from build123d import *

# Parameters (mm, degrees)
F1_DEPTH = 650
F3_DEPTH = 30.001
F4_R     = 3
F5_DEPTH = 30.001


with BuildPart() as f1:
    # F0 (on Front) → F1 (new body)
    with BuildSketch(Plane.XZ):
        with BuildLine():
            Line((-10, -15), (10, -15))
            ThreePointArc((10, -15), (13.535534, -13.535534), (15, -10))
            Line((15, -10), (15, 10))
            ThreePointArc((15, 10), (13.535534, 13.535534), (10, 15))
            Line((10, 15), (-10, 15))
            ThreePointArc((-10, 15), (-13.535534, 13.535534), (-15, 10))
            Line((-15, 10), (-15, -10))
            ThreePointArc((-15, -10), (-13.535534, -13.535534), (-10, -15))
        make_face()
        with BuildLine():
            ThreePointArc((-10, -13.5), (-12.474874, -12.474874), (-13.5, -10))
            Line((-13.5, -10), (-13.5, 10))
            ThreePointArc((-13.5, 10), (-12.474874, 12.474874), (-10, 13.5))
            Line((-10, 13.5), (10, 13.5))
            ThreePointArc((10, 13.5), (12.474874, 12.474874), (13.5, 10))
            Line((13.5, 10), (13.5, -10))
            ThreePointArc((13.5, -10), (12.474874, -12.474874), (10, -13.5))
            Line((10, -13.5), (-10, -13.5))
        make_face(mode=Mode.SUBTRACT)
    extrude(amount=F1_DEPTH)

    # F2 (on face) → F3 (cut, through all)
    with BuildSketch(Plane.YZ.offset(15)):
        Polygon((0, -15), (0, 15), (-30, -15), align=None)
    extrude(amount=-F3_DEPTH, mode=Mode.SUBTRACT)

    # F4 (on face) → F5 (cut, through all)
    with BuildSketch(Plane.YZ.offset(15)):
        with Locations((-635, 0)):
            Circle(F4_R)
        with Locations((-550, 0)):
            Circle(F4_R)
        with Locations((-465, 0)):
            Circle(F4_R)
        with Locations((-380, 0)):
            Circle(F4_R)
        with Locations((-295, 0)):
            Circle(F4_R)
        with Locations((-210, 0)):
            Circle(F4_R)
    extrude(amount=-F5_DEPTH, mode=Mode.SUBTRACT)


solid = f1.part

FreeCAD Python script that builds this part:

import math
import FreeCAD as App
import Part
import Sketcher

V = App.Vector

doc = App.newDocument("Part")
body = doc.addObject("PartDesign::Body", "Body")

# Sketch on XZ plane
sketch1 = body.newObject("Sketcher::SketchObject", "Sketch")
sketch1.AttachmentSupport = (doc.getObject("XZ_Plane"), [""])
sketch1.MapMode = "FlatFace"
sketch1.addGeometry([
    Part.LineSegment(V(-10, -15, 0), V(10, -15, 0)),  # 0
    Part.ArcOfCircle(Part.Circle(V(10, -10, 0), V(0, 0, 1), 5), math.radians(-90.000004), math.radians(0.000004)),  # 1
    Part.LineSegment(V(15, -10, 0), V(15, 10, 0)),  # 2
    Part.ArcOfCircle(Part.Circle(V(10, 10, 0), V(0, 0, 1), 5), math.radians(-0.000004), math.radians(90.000004)),  # 3
    Part.LineSegment(V(10, 15, 0), V(-10, 15, 0)),  # 4
    Part.ArcOfCircle(Part.Circle(V(-10, 10, 0), V(0, 0, 1), 5), math.radians(89.999996), math.radians(180.000004)),  # 5
    Part.LineSegment(V(-15, 10, 0), V(-15, -10, 0)),  # 6
    Part.ArcOfCircle(Part.Circle(V(-10, -10, 0), V(0, 0, 1), 5), math.radians(179.999996), math.radians(270.000004)),  # 7
    Part.LineSegment(V(10, -13.5, 0), V(-10, -13.5, 0)),  # 8
    Part.ArcOfCircle(Part.Circle(V(-10.000001, -10.000001, 0), V(0, 0, 1), 3.499999), math.radians(179.999985), math.radians(270.000015)),  # 9
    Part.LineSegment(V(-13.5, -10, 0), V(-13.5, 10, 0)),  # 10
    Part.ArcOfCircle(Part.Circle(V(-10.000001, 10.000001, 0), V(0, 0, 1), 3.499999), math.radians(89.999985), math.radians(180.000015)),  # 11
    Part.LineSegment(V(-10, 13.5, 0), V(10, 13.5, 0)),  # 12
    Part.ArcOfCircle(Part.Circle(V(10.000001, 10.000001, 0), V(0, 0, 1), 3.499999), math.radians(-0.000015), math.radians(90.000015)),  # 13
    Part.LineSegment(V(13.5, 10, 0), V(13.5, -10, 0)),  # 14
    Part.ArcOfCircle(Part.Circle(V(10.000001, -10.000001, 0), V(0, 0, 1), 3.499999), math.radians(-90.000015), math.radians(0.000015)),  # 15
], False)
sketch1.addConstraint([
    Sketcher.Constraint("Tangent", 0, 2, 1, 1),
    Sketcher.Constraint("Tangent", 1, 2, 2, 1),
    Sketcher.Constraint("Tangent", 2, 2, 3, 1),
    Sketcher.Constraint("Tangent", 3, 2, 4, 1),
    Sketcher.Constraint("Tangent", 4, 2, 5, 1),
    Sketcher.Constraint("Tangent", 5, 2, 6, 1),
    Sketcher.Constraint("Tangent", 6, 2, 7, 1),
    Sketcher.Constraint("Tangent", 7, 2, 0, 1),
    Sketcher.Constraint("Tangent", 8, 2, 9, 2),
    Sketcher.Constraint("Tangent", 9, 1, 10, 1),
    Sketcher.Constraint("Tangent", 10, 2, 11, 2),
    Sketcher.Constraint("Tangent", 11, 1, 12, 1),
    Sketcher.Constraint("Tangent", 12, 2, 13, 2),
    Sketcher.Constraint("Tangent", 13, 1, 14, 1),
    Sketcher.Constraint("Tangent", 14, 2, 15, 2),
    Sketcher.Constraint("Tangent", 15, 1, 8, 1),
    Sketcher.Constraint("Horizontal", 0),
    Sketcher.Constraint("Vertical", 2),
    Sketcher.Constraint("Horizontal", 4),
    Sketcher.Constraint("Vertical", 6),
    Sketcher.Constraint("Horizontal", 8),
    Sketcher.Constraint("Vertical", 10),
    Sketcher.Constraint("Horizontal", 12),
    Sketcher.Constraint("Vertical", 14),
    Sketcher.Constraint("Coincident", 9, 3, 7, 3),
    Sketcher.Constraint("Coincident", 11, 3, 5, 3),
    Sketcher.Constraint("Coincident", 13, 3, 3, 3),
    Sketcher.Constraint("Equal", 1, 3),
    Sketcher.Constraint("Equal", 3, 5),
    Sketcher.Constraint("Equal", 5, 7),
    Sketcher.Constraint("Equal", 13, 15),
    Sketcher.Constraint("Symmetric", 1, 3, 5, 3, -1, 1),
    Sketcher.Constraint("Equal", 12, 2),
    Sketcher.Constraint("Radius", 1, 5.0),
    Sketcher.Constraint("Radius", 9, 3.499999),
    Sketcher.Constraint("DistanceX", 0, 1, 0, 2, 20.0),
])
pad1 = body.newObject("PartDesign::Pad", "Pad")
pad1.Profile = sketch1
pad1.Length = 650

# Sketch on YZ plane
sketch2 = body.newObject("Sketcher::SketchObject", "Sketch001")
sketch2.AttachmentSupport = (doc.getObject("YZ_Plane"), [""])
sketch2.MapMode = "FlatFace"
sketch2.AttachmentOffset = App.Placement(V(0, 0, 15), App.Rotation())
sketch2.addGeometry([
    Part.LineSegment(V(0, -15, 0), V(0, 15, 0)),
    Part.LineSegment(V(0, 15, 0), V(-30, -15, 0)),
    Part.LineSegment(V(-30, -15, 0), V(0, -15, 0)),
], False)
sketch2.addConstraint([
    Sketcher.Constraint("Coincident", 0, 2, 1, 1),
    Sketcher.Constraint("Coincident", 1, 2, 2, 1),
    Sketcher.Constraint("Coincident", 2, 2, 0, 1),
    Sketcher.Constraint("Vertical", 0),
    Sketcher.Constraint("Horizontal", 2),
    Sketcher.Constraint("Symmetric", 0, 2, 2, 2, -1, 1),
    Sketcher.Constraint("Equal", 2, 0),
    Sketcher.Constraint("DistanceX", 2, 1, 2, 2, 30.0),
])
pocket1 = body.newObject("PartDesign::Pocket", "Pocket")
pocket1.Profile = sketch2
pocket1.Type = "ThroughAll"

# Sketch on YZ plane
sketch3 = body.newObject("Sketcher::SketchObject", "Sketch002")
sketch3.AttachmentSupport = (doc.getObject("YZ_Plane"), [""])
sketch3.MapMode = "FlatFace"
sketch3.AttachmentOffset = App.Placement(V(0, 0, 15), App.Rotation())
sketch3.addGeometry([
    Part.Circle(V(-635, 0, 0), V(0, 0, 1), 3),  # 0
    Part.Circle(V(-550, 0, 0), V(0, 0, 1), 3),  # 1
    Part.Circle(V(-465, 0, 0), V(0, 0, 1), 3),  # 2
    Part.Circle(V(-380, 0, 0), V(0, 0, 1), 3),  # 3
    Part.Circle(V(-295, 0, 0), V(0, 0, 1), 3),  # 4
    Part.Circle(V(-210, 0, 0), V(0, 0, 1), 3),  # 5
], False)
sketch3.addConstraint([
    Sketcher.Constraint("Equal", 0, 1),
    Sketcher.Constraint("Equal", 1, 2),
    Sketcher.Constraint("Equal", 2, 3),
    Sketcher.Constraint("Equal", 3, 4),
    Sketcher.Constraint("Equal", 4, 5),
    Sketcher.Constraint("PointOnObject", 0, 3, -1),
    Sketcher.Constraint("PointOnObject", 1, 3, -1),
    Sketcher.Constraint("PointOnObject", 2, 3, -1),
    Sketcher.Constraint("PointOnObject", 3, 3, -1),
    Sketcher.Constraint("PointOnObject", 4, 3, -1),
    Sketcher.Constraint("PointOnObject", 5, 3, -1),
    Sketcher.Constraint("Diameter", 0, 6.0),
    Sketcher.Constraint("DistanceX", 0, 3, -1, 1, 635.0),
    Sketcher.Constraint("DistanceX", 1, 3, -1, 1, 550.0),
    Sketcher.Constraint("DistanceX", 2, 3, -1, 1, 465.0),
    Sketcher.Constraint("DistanceX", 3, 3, -1, 1, 380.0),
    Sketcher.Constraint("DistanceX", 4, 3, -1, 1, 295.0),
    Sketcher.Constraint("DistanceX", 5, 3, -1, 1, 210.0),
])
pocket2 = body.newObject("PartDesign::Pocket", "Pocket001")
pocket2.Profile = sketch3
pocket2.Type = "ThroughAll"

doc.recompute()
